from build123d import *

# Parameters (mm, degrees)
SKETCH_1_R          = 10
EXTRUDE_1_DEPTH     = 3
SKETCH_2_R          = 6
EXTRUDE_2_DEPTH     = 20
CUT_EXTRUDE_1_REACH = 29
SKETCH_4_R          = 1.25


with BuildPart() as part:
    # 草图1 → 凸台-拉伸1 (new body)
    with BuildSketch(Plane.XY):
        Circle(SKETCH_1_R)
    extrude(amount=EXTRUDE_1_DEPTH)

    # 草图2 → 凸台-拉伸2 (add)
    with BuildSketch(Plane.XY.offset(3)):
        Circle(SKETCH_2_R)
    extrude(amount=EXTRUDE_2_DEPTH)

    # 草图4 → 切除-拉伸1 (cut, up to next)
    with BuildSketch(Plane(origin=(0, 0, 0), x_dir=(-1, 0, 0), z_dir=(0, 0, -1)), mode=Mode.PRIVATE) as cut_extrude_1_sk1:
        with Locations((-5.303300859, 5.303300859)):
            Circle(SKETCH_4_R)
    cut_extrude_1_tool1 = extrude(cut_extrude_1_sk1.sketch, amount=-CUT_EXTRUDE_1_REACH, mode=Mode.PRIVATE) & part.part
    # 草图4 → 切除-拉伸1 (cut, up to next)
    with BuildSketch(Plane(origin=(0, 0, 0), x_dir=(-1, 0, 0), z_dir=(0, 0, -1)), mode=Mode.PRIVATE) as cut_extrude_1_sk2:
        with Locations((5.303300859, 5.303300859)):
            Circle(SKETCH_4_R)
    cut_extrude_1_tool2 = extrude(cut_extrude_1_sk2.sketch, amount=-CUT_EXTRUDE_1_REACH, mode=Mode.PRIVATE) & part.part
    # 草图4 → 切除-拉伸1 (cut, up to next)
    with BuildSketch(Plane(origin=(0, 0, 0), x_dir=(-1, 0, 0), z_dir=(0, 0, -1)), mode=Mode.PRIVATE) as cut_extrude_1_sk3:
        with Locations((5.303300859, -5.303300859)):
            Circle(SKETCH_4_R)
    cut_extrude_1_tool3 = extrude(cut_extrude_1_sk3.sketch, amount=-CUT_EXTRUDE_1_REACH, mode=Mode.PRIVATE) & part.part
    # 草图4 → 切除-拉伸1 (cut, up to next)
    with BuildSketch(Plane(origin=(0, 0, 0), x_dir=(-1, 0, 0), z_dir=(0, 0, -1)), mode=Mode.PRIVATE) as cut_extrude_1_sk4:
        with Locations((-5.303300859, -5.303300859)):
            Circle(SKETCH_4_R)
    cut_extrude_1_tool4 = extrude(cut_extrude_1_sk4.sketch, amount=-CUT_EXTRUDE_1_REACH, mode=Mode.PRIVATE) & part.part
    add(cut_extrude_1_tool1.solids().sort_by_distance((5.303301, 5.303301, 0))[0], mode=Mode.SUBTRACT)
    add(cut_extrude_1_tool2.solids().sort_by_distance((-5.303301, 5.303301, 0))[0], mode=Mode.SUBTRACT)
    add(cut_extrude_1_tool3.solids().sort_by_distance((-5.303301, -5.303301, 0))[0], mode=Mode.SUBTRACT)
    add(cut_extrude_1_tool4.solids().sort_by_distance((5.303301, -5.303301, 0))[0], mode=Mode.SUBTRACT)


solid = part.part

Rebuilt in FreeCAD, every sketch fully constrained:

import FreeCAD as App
import Part
import Sketcher

V = App.Vector
Q = App.Units.Quantity

doc = App.newDocument("Part")
body = doc.addObject("PartDesign::Body", "Body")

# Sketch on XY plane
sketch1 = body.newObject("Sketcher::SketchObject", "Sketch")
sketch1.AttachmentSupport = (doc.getObject("XY_Plane"), [""])
sketch1.MapMode = "FlatFace"
sketch1.addGeometry(Part.Circle(V(0, 0, 0), V(0, 0, 1), 10), False)
sketch1.addConstraint([
    Sketcher.Constraint("Coincident", 0, 3, -1, 1),
    Sketcher.Constraint("Diameter", 0, Q("20 mm")),
])
pad1 = body.newObject("PartDesign::Pad", "Pad")
pad1.Profile = sketch1
pad1.Length = 3

# Sketch on XY plane
sketch2 = body.newObject("Sketcher::SketchObject", "Sketch001")
sketch2.AttachmentSupport = (doc.getObject("XY_Plane"), [""])
sketch2.MapMode = "FlatFace"
sketch2.AttachmentOffset = App.Placement(V(0, 0, 3), App.Rotation())
sketch2.addGeometry(Part.Circle(V(0, 0, 0), V(0, 0, 1), 6), False)
sketch2.addConstraint([
    Sketcher.Constraint("Coincident", 0, 3, -1, 1),
    Sketcher.Constraint("Diameter", 0, Q("12 mm")),
])
pad2 = body.newObject("PartDesign::Pad", "Pad001")
pad2.Profile = sketch2
pad2.Length = 20

# Sketch on XY plane
sketch3 = body.newObject("Sketcher::SketchObject", "Sketch002")
sketch3.AttachmentSupport = (doc.getObject("XY_Plane"), [""])
sketch3.MapMode = "FlatFace"
sketch3.addGeometry(Part.Circle(V(5.3, 5.3, 0), V(0, 0, 1), 1.2), False)
sketch3.addConstraint([
    Sketcher.Constraint("Diameter", 0, Q("2.5 mm")),
    Sketcher.Constraint("DistanceX", -1, 1, 0, 3, Q("5.303301 mm")),
    Sketcher.Constraint("DistanceY", -1, 1, 0, 3, Q("5.303301 mm")),
])
pocket1 = body.newObject("PartDesign::Pocket", "Pocket")
pocket1.Profile = sketch3
pocket1.Type = "UpToFirst"
pocket1.Reversed = True

# Sketch on XY plane
sketch4 = body.newObject("Sketcher::SketchObject", "Sketch003")
sketch4.AttachmentSupport = (doc.getObject("XY_Plane"), [""])
sketch4.MapMode = "FlatFace"
sketch4.addGeometry(Part.Circle(V(-5.3, 5.3, 0), V(0, 0, 1), 1.2), False)
sketch4.addConstraint([
    Sketcher.Constraint("Diameter", 0, Q("2.5 mm")),
    Sketcher.Constraint("DistanceX", 0, 3, -1, 1, Q("5.303301 mm")),
    Sketcher.Constraint("DistanceY", -1, 1, 0, 3, Q("5.303301 mm")),
])
pocket2 = body.newObject("PartDesign::Pocket", "Pocket001")
pocket2.Profile = sketch4
pocket2.Type = "UpToFirst"
pocket2.Reversed = True

# Sketch on XY plane
sketch5 = body.newObject("Sketcher::SketchObject", "Sketch004")
sketch5.AttachmentSupport = (doc.getObject("XY_Plane"), [""])
sketch5.MapMode = "FlatFace"
sketch5.addGeometry(Part.Circle(V(-5.3, -5.3, 0), V(0, 0, 1), 1.2), False)
sketch5.addConstraint([
    Sketcher.Constraint("Diameter", 0, Q("2.5 mm")),
    Sketcher.Constraint("DistanceX", 0, 3, -1, 1, Q("5.303301 mm")),
    Sketcher.Constraint("DistanceY", 0, 3, -1, 1, Q("5.303301 mm")),
])
pocket3 = body.newObject("PartDesign::Pocket", "Pocket002")
pocket3.Profile = sketch5
pocket3.Type = "UpToFirst"
pocket3.Reversed = True

# Sketch on XY plane
sketch6 = body.newObject("Sketcher::SketchObject", "Sketch005")
sketch6.AttachmentSupport = (doc.getObject("XY_Plane"), [""])
sketch6.MapMode = "FlatFace"
sketch6.addGeometry(Part.Circle(V(5.3, -5.3, 0), V(0, 0, 1), 1.2), False)
sketch6.addConstraint([
    Sketcher.Constraint("Diameter", 0, Q("2.5 mm")),
    Sketcher.Constraint("DistanceX", -1, 1, 0, 3, Q("5.303301 mm")),
    Sketcher.Constraint("DistanceY", 0, 3, -1, 1, Q("5.303301 mm")),
])
pocket4 = body.newObject("PartDesign::Pocket", "Pocket003")
pocket4.Profile = sketch6
pocket4.Type = "UpToFirst"
pocket4.Reversed = True

doc.recompute()
